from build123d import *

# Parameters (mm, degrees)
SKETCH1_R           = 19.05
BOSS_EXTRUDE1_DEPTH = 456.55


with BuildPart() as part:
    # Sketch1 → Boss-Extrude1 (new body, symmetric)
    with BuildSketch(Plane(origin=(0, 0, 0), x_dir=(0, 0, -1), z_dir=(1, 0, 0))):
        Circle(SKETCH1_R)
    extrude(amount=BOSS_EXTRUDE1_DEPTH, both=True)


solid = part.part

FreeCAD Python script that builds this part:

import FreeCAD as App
import Part
import Sketcher
Q = App.Units.Quantity

doc = App.newDocument("Part")
body = doc.addObject("PartDesign::Body", "Body")

# Sketch on YZ plane
sketch1 = doc.addObject("Sketcher::SketchObject", "Sketch")
body.addObject(sketch1)
sketch1.AttachmentSupport = (doc.YZ_Plane, [""])
sketch1.MapMode = "FlatFace"
sketch1.addGeometry(Part.Circle(App.Vector(0, 0, 0), App.Vector(0, 0, 1), 19), False)
sketch1.addConstraint([
    Sketcher.Constraint("Coincident", 0, 3, -1, 1),
    Sketcher.Constraint("Diameter", 0, Q("1.5 in")),
])
pad1 = doc.addObject("PartDesign::Pad", "Pad")
body.addObject(pad1)
pad1.Profile = sketch1
pad1.Length = 913.1
pad1.Midplane = True

doc.recompute()
